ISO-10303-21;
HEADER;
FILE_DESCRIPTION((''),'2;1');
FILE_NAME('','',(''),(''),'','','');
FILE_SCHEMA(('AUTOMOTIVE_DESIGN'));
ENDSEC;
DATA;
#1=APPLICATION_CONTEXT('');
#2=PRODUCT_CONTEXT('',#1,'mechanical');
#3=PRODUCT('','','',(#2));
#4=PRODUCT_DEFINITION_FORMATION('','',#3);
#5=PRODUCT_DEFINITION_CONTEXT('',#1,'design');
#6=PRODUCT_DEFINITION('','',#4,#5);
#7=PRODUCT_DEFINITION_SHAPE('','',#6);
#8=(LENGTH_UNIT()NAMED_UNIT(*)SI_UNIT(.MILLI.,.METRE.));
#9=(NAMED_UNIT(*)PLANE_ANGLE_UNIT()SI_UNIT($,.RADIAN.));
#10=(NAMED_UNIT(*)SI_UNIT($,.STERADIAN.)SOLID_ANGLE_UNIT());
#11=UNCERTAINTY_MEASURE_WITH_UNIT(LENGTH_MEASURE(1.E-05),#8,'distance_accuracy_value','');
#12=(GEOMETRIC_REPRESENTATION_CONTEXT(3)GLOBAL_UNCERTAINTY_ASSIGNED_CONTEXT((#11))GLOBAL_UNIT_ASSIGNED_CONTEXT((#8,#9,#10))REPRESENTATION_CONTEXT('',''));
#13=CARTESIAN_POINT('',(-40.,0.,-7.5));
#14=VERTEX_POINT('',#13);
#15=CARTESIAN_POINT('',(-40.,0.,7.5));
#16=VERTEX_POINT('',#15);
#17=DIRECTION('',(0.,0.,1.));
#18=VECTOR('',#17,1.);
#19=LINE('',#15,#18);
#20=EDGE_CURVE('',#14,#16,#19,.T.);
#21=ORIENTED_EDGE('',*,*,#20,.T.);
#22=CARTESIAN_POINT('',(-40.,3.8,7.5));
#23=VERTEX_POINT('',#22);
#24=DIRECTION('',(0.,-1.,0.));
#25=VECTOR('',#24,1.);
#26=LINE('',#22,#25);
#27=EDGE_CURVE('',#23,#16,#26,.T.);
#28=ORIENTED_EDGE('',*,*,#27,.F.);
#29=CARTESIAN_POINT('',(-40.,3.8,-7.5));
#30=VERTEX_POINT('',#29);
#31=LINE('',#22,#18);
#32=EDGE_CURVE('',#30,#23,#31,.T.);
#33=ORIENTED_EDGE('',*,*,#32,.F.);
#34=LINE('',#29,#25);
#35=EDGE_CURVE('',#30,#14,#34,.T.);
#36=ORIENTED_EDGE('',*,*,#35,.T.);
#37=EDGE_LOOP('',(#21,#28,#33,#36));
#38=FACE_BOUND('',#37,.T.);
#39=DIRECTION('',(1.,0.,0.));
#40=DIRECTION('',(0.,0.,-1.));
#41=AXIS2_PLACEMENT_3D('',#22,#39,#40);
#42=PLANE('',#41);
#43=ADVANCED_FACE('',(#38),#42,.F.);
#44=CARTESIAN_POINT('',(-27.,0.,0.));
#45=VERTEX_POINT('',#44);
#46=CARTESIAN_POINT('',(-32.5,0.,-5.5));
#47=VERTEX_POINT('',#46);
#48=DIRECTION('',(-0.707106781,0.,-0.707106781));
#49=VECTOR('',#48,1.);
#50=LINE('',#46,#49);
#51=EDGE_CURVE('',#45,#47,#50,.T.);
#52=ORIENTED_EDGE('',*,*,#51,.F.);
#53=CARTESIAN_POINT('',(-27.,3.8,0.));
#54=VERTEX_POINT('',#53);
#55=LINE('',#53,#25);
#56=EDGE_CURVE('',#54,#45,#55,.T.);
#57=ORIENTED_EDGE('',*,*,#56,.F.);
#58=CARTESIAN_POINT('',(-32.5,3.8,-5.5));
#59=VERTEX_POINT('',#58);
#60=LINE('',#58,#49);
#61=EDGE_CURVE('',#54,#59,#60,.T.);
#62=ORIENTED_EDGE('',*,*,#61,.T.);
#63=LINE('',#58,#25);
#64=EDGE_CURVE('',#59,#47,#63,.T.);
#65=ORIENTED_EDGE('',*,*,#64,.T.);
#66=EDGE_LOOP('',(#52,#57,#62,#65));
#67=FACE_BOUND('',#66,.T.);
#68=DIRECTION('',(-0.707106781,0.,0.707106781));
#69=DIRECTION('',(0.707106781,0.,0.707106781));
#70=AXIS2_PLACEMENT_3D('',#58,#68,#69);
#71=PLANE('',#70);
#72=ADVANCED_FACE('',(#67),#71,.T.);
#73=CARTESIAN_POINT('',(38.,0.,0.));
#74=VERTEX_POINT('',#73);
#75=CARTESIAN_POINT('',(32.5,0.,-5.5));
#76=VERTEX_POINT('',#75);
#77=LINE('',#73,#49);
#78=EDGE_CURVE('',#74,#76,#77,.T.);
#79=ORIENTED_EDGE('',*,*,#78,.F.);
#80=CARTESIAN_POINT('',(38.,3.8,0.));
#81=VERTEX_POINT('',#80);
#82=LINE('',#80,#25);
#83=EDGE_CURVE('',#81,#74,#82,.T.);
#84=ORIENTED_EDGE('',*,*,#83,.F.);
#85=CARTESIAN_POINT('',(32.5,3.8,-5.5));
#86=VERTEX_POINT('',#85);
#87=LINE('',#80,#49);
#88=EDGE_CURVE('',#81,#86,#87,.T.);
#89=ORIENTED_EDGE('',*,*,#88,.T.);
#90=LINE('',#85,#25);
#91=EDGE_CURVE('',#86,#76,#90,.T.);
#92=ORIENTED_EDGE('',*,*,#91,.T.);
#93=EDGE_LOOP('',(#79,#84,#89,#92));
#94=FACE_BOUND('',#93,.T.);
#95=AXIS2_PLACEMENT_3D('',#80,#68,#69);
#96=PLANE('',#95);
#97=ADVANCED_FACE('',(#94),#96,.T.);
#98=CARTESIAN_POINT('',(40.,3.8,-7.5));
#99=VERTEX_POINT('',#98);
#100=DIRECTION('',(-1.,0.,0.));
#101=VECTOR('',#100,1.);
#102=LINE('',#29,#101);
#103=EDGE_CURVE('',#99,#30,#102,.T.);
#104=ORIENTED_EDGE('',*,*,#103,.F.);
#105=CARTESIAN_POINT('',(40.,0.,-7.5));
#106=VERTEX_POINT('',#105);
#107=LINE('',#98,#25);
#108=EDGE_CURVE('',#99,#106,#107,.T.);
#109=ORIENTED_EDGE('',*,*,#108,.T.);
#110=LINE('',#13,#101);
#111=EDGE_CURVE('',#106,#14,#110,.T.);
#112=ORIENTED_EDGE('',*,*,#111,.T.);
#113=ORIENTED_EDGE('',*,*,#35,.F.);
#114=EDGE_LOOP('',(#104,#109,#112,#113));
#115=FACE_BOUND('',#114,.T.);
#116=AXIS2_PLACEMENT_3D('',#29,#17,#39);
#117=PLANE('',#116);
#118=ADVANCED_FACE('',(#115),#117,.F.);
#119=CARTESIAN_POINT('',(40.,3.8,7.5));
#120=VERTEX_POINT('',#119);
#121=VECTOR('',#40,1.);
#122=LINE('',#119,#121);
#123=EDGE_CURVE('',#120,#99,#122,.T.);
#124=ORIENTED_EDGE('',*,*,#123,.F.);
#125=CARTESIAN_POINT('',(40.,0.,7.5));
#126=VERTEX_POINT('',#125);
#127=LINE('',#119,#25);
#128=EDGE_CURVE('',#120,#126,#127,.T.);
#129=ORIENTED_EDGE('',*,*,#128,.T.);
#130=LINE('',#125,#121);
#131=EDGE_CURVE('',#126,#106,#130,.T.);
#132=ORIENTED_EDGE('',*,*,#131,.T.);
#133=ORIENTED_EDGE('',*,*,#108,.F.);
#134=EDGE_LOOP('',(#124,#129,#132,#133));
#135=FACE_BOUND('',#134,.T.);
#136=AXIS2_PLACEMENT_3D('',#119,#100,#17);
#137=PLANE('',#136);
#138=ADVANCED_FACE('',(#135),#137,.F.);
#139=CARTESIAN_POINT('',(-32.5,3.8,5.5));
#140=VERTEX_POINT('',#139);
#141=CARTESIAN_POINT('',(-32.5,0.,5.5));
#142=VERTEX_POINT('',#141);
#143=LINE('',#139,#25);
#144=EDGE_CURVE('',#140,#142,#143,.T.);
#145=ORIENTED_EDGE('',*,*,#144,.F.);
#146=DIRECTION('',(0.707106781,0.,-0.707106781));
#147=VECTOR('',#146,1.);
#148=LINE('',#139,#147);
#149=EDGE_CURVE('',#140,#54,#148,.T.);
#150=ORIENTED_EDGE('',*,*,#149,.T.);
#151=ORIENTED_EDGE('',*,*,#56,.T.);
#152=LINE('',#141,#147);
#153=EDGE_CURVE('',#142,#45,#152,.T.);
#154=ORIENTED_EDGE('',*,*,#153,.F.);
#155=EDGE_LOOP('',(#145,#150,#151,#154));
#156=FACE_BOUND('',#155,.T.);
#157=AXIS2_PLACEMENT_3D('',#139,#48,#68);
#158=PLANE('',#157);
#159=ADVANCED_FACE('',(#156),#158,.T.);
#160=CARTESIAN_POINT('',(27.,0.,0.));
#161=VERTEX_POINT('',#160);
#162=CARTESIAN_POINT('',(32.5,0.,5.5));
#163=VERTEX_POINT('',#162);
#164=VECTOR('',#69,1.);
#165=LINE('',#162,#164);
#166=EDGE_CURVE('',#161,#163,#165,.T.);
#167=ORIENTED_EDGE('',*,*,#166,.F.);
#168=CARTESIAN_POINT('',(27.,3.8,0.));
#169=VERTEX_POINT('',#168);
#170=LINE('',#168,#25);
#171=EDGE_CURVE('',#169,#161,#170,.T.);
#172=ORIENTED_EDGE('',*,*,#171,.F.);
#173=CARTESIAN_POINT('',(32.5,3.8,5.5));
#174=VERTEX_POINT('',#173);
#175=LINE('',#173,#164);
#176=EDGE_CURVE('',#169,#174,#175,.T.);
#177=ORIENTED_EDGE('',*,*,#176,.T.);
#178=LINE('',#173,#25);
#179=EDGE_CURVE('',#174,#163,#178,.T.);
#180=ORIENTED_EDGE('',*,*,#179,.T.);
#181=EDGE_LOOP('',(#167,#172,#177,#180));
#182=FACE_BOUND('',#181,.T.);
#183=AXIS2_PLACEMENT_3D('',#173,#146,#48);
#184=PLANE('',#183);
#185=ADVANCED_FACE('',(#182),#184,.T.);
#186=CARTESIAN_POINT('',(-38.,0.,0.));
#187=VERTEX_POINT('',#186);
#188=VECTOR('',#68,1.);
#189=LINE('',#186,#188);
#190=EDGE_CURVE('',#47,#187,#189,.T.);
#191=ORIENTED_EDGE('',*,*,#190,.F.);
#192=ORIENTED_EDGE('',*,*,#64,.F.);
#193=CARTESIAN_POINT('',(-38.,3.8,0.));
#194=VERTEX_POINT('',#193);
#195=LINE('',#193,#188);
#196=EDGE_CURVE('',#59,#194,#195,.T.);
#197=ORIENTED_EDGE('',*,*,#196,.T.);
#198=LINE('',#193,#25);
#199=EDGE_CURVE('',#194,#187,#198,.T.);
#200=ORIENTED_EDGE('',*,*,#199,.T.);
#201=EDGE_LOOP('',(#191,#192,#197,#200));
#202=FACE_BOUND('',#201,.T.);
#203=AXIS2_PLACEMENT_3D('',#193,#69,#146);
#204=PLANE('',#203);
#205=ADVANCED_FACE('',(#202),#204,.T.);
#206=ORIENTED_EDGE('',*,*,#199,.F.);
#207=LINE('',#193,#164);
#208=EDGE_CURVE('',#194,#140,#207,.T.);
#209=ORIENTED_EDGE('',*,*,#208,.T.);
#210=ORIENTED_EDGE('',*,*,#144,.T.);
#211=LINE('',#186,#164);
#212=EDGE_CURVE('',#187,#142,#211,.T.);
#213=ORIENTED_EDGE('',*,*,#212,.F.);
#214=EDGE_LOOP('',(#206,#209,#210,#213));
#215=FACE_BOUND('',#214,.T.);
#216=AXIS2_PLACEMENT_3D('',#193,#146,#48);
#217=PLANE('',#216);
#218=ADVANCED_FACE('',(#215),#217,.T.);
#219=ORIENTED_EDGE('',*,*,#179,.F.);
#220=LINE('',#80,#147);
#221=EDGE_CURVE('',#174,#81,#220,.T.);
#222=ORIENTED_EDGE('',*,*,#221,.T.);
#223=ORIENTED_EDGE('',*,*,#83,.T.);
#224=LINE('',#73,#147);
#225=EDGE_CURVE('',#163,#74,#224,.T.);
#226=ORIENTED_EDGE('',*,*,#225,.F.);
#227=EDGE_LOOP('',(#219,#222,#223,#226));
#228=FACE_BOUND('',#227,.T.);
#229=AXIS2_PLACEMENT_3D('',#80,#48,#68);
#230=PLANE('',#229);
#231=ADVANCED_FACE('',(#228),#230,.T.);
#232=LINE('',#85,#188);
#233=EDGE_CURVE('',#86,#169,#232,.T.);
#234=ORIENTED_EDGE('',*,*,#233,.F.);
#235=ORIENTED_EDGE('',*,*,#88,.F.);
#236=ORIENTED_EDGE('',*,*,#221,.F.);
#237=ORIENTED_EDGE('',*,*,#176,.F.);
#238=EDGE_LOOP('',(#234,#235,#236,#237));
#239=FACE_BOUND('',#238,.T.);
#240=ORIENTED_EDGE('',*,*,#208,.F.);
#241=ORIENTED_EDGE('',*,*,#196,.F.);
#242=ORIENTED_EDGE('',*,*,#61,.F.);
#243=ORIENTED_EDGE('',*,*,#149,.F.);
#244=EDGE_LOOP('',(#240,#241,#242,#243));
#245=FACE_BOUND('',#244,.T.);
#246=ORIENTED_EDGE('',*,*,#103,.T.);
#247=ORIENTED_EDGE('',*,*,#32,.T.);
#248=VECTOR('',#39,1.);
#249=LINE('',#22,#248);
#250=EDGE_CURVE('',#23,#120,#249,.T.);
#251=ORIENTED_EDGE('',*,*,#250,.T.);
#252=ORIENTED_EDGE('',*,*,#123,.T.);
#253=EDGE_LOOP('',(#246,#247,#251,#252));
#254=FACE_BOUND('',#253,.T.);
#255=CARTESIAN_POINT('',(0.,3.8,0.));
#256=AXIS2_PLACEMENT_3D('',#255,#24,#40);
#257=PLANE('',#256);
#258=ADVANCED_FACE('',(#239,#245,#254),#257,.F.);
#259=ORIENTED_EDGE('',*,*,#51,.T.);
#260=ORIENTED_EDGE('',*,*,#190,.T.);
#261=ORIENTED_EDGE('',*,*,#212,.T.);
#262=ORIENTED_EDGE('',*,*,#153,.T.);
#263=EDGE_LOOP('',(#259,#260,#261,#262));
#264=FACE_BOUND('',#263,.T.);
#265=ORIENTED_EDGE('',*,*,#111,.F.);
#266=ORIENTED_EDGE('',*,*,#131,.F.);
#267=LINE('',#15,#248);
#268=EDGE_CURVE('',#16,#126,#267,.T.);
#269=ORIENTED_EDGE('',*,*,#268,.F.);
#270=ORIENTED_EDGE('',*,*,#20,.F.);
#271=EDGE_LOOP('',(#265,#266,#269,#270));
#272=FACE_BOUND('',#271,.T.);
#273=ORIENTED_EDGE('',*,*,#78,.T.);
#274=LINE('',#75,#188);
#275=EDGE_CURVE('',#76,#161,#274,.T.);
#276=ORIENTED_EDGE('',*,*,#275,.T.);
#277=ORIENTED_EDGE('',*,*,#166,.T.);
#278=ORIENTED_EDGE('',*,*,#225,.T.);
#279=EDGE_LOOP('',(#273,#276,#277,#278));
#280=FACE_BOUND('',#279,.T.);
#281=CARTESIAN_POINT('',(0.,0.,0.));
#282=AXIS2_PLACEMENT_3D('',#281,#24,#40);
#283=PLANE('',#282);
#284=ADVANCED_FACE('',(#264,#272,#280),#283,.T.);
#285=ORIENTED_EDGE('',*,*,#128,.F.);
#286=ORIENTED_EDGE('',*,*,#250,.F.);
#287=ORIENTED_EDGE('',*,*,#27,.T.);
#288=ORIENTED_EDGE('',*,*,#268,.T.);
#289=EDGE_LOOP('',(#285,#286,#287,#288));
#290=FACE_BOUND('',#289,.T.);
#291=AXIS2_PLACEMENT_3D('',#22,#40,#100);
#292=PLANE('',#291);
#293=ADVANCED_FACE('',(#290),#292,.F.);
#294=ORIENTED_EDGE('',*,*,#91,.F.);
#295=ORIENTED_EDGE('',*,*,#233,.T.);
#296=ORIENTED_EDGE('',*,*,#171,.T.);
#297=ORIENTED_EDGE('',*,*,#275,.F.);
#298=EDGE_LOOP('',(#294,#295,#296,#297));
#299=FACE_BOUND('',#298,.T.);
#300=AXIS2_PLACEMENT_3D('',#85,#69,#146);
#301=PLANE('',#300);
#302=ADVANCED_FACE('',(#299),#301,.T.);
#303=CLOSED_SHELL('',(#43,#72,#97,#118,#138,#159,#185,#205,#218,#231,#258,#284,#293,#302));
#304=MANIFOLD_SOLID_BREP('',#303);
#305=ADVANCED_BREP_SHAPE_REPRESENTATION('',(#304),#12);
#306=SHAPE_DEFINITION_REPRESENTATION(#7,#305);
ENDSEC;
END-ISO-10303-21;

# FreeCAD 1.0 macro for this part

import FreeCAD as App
import Part
import Sketcher
Q = App.Units.Quantity


def add_polygon(sketch, points):
    """Adds a closed chain of lines whose ends are joined by coincident constraints."""
    first, n = sketch.GeometryCount, len(points)
    for a, b in zip(points, points[1:] + points[:1]):
        sketch.addGeometry(Part.LineSegment(App.Vector(*a, 0), App.Vector(*b, 0)), False)
    for i in range(n):
        sketch.addConstraint(Sketcher.Constraint("Coincident", first + i, 2, first + (i + 1) % n, 1))

doc = App.newDocument("Part")
body = doc.addObject("PartDesign::Body", "Body")

# Sketch on XZ plane
sketch1 = doc.addObject("Sketcher::SketchObject", "Sketch")
body.addObject(sketch1)
sketch1.AttachmentSupport = (doc.XZ_Plane, [""])
sketch1.MapMode = "FlatFace"
add_polygon(sketch1, [(-40, -8), (-40, 8), (40, 8), (40, -8)])  # lines 0-3
add_polygon(sketch1, [(-32, 6), (-38, 0), (-32, -6), (-27, 0)])  # lines 4-7
add_polygon(sketch1, [(27, 0), (32, -6), (38, 0), (32, 6)])  # lines 8-11
sketch1.addConstraint([
    Sketcher.Constraint("Vertical", 0),
    Sketcher.Constraint("Horizontal", 1),
    Sketcher.Constraint("Vertical", 2),
    Sketcher.Constraint("Horizontal", 3),
    Sketcher.Constraint("Symmetric", 0, 2, 2, 2, -1, 1),
    Sketcher.Constraint("Symmetric", 7, 2, 8, 2, -1, 1),
    Sketcher.Constraint("Symmetric", 4, 2, 9, 2, -1, 1),
    Sketcher.Constraint("Symmetric", 5, 2, 10, 2, -1, 1),
    Sketcher.Constraint("Symmetric", 6, 2, 11, 2, -1, 1),
    Sketcher.Constraint("Symmetric", 5, 2, 8, 2, -2),
    Sketcher.Constraint("PointOnObject", 4, 2, -1),
    Sketcher.Constraint("PointOnObject", 6, 2, -1),
    Sketcher.Constraint("Perpendicular", 4, 5),
    Sketcher.Constraint("Perpendicular", 5, 6),
    Sketcher.Constraint("DistanceX", 1, 1, 1, 2, Q("80 mm")),
    Sketcher.Constraint("DistanceY", 0, 1, 0, 2, Q("15 mm")),
    Sketcher.Constraint("DistanceX", 4, 2, -1, 1, Q("38 mm")),
    Sketcher.Constraint("DistanceX", 6, 2, -1, 1, Q("27 mm")),
])
pad1 = doc.addObject("PartDesign::Pad", "Pad")
body.addObject(pad1)
pad1.Profile = sketch1
pad1.Length = 3.8
pad1.Reversed = True

doc.recompute()
